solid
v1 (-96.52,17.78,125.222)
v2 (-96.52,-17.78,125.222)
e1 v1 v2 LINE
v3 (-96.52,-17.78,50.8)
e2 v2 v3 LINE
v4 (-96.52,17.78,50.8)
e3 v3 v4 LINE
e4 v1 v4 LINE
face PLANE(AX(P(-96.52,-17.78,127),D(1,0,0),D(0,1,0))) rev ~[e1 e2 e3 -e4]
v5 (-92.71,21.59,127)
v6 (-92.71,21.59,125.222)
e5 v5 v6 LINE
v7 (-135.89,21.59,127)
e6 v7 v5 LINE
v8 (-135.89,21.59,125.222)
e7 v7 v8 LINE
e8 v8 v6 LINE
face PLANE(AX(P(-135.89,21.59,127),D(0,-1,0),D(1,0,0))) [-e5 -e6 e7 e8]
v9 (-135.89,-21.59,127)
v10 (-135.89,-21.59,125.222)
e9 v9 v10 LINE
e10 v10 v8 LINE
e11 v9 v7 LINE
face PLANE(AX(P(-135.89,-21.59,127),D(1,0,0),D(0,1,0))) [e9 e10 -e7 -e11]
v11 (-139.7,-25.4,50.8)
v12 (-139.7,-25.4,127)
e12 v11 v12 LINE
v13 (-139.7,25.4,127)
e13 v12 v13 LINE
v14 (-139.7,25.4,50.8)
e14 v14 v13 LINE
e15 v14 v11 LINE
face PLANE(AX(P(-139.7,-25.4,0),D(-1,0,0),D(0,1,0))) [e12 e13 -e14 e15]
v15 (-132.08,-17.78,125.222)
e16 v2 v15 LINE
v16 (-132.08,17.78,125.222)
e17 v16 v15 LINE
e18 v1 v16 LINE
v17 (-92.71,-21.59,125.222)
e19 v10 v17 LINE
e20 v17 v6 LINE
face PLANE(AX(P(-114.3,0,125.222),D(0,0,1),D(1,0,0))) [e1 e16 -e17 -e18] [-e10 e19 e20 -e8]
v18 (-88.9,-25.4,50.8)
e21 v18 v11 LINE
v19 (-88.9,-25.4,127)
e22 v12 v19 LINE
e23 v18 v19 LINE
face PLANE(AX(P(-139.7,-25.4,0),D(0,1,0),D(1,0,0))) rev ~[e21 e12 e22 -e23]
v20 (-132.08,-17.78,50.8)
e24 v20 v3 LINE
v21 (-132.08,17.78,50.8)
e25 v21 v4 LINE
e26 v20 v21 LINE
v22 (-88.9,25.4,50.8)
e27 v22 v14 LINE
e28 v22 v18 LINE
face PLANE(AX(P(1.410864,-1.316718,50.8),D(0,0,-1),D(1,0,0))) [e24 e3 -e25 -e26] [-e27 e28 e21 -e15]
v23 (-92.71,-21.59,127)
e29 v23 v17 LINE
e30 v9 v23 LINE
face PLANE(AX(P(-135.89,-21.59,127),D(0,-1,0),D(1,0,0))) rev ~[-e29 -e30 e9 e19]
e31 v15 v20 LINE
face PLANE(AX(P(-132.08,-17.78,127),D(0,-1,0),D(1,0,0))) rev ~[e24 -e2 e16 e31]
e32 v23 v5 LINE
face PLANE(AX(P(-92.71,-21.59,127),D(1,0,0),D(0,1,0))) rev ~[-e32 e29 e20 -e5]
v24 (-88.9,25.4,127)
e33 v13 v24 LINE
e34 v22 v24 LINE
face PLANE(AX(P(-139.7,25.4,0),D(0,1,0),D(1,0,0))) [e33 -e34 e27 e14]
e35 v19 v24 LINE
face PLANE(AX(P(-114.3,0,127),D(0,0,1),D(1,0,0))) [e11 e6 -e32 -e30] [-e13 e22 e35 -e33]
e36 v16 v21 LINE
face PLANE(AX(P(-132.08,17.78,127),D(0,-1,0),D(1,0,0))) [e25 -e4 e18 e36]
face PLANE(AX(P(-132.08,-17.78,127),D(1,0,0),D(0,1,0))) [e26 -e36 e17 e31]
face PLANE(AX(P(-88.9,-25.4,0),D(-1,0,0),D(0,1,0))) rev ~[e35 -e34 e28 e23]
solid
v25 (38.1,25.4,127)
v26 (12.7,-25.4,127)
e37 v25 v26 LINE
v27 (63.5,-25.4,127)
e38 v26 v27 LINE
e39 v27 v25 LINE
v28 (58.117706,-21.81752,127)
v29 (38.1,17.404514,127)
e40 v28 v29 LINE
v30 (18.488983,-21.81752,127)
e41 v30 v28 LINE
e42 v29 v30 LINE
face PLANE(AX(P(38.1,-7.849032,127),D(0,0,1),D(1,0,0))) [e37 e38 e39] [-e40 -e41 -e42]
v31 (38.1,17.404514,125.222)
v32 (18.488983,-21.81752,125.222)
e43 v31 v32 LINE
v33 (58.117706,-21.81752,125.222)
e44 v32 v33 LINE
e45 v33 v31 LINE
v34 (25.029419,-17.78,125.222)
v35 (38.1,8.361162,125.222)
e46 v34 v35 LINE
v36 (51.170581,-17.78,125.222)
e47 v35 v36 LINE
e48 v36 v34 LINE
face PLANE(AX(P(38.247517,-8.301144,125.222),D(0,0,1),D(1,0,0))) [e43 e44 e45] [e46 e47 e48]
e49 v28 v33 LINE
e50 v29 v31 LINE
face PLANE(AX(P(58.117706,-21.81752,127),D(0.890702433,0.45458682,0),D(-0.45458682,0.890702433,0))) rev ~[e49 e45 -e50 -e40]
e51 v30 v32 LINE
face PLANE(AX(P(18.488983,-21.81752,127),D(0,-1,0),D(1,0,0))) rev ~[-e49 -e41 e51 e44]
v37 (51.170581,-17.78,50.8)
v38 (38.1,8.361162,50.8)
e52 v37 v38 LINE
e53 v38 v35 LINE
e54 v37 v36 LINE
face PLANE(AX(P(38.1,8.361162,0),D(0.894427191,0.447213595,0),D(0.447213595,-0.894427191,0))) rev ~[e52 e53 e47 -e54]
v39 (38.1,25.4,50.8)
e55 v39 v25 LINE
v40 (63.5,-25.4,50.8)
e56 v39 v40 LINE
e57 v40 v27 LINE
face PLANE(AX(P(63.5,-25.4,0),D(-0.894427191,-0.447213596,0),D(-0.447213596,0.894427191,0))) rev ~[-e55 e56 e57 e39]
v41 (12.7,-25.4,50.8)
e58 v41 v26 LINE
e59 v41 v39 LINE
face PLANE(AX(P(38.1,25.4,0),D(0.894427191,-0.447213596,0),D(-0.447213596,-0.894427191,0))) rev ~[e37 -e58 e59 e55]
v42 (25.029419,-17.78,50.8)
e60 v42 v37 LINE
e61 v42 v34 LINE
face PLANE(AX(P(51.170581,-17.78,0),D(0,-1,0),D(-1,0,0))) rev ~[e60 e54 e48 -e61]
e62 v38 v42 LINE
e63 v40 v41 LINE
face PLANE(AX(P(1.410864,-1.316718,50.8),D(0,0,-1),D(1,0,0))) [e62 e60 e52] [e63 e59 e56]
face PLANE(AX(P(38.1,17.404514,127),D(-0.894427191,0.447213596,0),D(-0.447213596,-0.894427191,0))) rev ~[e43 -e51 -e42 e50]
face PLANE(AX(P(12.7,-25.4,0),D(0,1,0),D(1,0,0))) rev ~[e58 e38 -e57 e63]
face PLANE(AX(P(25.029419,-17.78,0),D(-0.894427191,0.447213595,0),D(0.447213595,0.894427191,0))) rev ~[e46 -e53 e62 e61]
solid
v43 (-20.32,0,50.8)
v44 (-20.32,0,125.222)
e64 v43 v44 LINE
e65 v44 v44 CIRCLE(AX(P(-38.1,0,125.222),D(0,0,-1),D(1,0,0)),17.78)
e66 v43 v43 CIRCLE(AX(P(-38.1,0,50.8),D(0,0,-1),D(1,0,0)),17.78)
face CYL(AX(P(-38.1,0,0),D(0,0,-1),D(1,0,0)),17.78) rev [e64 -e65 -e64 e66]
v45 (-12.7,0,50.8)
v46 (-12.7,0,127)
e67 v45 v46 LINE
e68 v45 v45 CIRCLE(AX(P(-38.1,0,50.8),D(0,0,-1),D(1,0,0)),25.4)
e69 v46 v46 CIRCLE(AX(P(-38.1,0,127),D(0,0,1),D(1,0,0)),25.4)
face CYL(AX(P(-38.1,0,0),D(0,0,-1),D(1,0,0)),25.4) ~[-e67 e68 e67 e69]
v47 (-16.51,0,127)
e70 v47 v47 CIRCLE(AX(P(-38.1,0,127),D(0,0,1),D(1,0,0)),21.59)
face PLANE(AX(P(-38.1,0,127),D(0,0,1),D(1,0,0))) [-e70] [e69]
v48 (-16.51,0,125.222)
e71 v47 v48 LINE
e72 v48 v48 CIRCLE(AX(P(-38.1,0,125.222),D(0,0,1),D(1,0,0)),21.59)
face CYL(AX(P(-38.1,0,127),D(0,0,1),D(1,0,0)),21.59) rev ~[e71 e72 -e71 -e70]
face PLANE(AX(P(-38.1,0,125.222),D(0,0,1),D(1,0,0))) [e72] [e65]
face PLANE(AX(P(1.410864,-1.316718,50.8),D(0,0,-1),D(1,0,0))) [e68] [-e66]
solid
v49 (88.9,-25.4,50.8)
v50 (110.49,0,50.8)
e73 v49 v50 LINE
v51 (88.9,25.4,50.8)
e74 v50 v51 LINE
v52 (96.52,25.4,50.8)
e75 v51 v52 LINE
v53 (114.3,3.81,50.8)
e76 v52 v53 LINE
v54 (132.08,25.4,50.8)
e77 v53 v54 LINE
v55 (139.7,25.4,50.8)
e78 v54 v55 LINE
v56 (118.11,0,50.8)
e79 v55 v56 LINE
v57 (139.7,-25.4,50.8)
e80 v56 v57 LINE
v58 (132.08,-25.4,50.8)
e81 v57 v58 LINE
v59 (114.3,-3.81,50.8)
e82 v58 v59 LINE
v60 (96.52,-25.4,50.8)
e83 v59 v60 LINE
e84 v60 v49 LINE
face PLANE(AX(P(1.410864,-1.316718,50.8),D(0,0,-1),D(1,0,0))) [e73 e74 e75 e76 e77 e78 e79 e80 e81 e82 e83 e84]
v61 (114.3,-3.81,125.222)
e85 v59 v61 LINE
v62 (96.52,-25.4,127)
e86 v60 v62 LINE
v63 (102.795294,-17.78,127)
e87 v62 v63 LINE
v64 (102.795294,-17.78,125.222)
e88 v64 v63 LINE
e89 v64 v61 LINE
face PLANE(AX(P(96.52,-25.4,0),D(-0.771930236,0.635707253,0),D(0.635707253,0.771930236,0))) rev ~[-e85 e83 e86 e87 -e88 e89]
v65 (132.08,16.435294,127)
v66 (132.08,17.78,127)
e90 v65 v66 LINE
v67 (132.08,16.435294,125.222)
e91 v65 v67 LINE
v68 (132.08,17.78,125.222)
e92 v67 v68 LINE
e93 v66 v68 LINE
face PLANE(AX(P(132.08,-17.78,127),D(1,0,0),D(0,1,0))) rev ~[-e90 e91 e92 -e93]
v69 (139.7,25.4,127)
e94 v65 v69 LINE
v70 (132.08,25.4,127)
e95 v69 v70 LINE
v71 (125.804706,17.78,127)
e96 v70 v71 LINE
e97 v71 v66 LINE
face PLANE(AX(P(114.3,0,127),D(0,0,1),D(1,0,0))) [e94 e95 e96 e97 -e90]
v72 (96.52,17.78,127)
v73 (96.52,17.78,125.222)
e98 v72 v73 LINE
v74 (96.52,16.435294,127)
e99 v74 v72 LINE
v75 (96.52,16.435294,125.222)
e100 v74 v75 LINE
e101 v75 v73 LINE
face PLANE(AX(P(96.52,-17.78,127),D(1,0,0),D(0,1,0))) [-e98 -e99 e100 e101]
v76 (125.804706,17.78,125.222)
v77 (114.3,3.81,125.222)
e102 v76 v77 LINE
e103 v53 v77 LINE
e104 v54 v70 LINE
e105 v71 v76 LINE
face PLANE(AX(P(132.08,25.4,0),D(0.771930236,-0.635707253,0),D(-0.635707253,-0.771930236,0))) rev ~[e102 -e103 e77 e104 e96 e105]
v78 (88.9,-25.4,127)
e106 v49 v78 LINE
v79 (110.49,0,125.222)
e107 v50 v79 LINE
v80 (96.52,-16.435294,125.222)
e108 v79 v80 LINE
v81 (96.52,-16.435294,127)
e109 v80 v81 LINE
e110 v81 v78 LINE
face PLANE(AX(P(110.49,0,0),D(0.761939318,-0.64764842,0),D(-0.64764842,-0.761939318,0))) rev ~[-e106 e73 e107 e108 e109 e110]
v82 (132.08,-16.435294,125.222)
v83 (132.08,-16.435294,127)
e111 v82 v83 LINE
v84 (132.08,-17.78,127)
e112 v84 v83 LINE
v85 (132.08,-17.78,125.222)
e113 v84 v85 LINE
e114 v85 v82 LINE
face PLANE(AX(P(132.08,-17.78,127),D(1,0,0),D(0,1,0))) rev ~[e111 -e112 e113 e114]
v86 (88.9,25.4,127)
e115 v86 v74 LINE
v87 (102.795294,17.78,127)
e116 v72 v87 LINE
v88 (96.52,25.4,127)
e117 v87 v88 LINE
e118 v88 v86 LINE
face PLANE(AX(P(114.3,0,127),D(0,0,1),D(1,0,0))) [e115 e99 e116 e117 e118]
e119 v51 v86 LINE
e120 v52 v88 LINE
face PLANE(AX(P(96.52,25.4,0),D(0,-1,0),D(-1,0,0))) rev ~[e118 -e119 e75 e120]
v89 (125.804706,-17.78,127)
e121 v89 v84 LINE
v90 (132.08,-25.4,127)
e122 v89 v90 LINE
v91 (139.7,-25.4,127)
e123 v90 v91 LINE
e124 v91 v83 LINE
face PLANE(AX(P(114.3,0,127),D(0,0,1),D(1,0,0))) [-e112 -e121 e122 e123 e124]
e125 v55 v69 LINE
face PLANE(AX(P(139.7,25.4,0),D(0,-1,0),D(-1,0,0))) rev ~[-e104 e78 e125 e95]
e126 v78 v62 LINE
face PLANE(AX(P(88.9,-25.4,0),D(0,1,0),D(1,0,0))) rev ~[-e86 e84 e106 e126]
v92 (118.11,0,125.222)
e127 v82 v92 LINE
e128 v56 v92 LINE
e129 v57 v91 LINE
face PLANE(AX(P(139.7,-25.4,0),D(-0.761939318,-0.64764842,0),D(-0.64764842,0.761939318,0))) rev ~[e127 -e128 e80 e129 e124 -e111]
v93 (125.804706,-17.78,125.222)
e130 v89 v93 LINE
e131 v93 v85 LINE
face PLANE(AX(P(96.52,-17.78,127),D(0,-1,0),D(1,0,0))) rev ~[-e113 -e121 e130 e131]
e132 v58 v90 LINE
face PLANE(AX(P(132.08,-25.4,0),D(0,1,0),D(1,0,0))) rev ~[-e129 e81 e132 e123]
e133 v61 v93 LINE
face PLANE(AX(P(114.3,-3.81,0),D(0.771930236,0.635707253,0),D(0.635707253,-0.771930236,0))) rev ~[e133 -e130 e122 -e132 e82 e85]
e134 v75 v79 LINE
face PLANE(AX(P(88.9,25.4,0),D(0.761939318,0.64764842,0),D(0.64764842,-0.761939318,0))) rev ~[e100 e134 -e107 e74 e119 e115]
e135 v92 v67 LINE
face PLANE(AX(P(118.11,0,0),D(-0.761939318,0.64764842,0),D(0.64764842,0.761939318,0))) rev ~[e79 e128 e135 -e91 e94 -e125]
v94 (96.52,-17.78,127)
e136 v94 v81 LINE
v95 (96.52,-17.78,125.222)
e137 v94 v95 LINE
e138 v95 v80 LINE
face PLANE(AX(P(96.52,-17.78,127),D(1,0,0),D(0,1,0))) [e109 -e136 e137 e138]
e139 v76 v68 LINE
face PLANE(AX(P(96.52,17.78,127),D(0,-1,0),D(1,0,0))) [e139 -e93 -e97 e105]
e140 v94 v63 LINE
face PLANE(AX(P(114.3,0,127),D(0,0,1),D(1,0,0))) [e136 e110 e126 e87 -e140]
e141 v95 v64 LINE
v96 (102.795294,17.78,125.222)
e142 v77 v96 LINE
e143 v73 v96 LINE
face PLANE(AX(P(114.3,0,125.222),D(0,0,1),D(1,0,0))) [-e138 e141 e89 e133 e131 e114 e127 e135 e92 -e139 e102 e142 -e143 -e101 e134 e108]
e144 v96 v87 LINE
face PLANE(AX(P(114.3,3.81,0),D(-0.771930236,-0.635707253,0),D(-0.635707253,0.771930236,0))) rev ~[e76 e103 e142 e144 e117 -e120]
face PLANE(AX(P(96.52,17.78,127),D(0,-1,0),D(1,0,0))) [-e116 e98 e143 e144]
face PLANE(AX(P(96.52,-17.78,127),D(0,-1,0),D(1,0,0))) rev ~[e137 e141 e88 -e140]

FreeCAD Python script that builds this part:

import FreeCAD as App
import Part
import Sketcher

V = App.Vector
Q = App.Units.Quantity


def add_polygon(sketch, points):
    """Adds a closed chain of lines whose ends are joined by coincident constraints."""
    first, n = sketch.GeometryCount, len(points)
    for a, b in zip(points, points[1:] + points[:1]):
        sketch.addGeometry(Part.LineSegment(App.Vector(*a, 0), App.Vector(*b, 0)), False)
    for i in range(n):
        sketch.addConstraint(Sketcher.Constraint("Coincident", first + i, 2, first + (i + 1) % n, 1))

doc = App.newDocument("Part")
body = doc.addObject("PartDesign::Body", "Body")

sketch1 = body.newObject("Sketcher::SketchObject", "Sketch")
sketch1.AttachmentSupport = (doc.getObject("XY_Plane"), [""])
sketch1.MapMode = "FlatFace"
add_polygon(sketch1, [(-140, 25), (-140, -25), (140, -25), (140, 25)])
sketch1.addConstraint([
    Sketcher.Constraint("Vertical", 0),
    Sketcher.Constraint("Horizontal", 1),
    Sketcher.Constraint("Vertical", 2),
    Sketcher.Constraint("Horizontal", 3),
    Sketcher.Constraint("Symmetric", 0, 2, 2, 2, -1, 1),
    Sketcher.Constraint("DistanceX", 1, 1, 1, 2, Q("11 in")),
    Sketcher.Constraint("DistanceY", 0, 2, 0, 1, Q("2 in")),
])
pad1 = body.newObject("PartDesign::Pad", "Pad")
pad1.Profile = sketch1
pad1.Length = Q("1 in")
pad1.Reversed = True
body2 = doc.addObject("PartDesign::Body", "Body001")

sketch2 = body2.newObject("Sketcher::SketchObject", "Sketch001")
sketch2.AttachmentSupport = (doc.getObject("XY_Plane001"), [""])
sketch2.MapMode = "FlatFace"
add_polygon(sketch2, [(-140, 25), (-140, -25), (-89, -25), (-89, 25)])
sketch2.addConstraint([
    Sketcher.Constraint("Vertical", 0),
    Sketcher.Constraint("Horizontal", 1),
    Sketcher.Constraint("Vertical", 2),
    Sketcher.Constraint("Horizontal", 3),
    Sketcher.Constraint("Equal", 3, 0),
    Sketcher.Constraint("DistanceX", 1, 1, 1, 2, Q("2 in")),
    Sketcher.Constraint("DistanceY", 0, 2, -1, 1, Q("1 in")),
    Sketcher.Constraint("DistanceX", 0, 2, -1, 1, Q("5.5 in")),
])
pad2 = body2.newObject("PartDesign::Pad", "Pad001")
pad2.Profile = sketch2
pad2.Length = Q("5 in")

sketch3 = body2.newObject("Sketcher::SketchObject", "Sketch002")
sketch3.AttachmentSupport = (doc.getObject("XY_Plane001"), [""])
sketch3.MapMode = "FlatFace"
sketch3.AttachmentOffset = App.Placement(V(0, 0, 5 * 25.4), App.Rotation())
add_polygon(sketch3, [(-132, 18), (-132, -18), (-97, -18), (-97, 18)])
sketch3.addConstraint([
    Sketcher.Constraint("Vertical", 0),
    Sketcher.Constraint("Horizontal", 1),
    Sketcher.Constraint("Vertical", 2),
    Sketcher.Constraint("Horizontal", 3),
    Sketcher.Constraint("Equal", 3, 0),
    Sketcher.Constraint("DistanceX", 1, 1, 1, 2, Q("1.4 in")),
    Sketcher.Constraint("DistanceX", 0, 2, -1, 1, Q("5.2 in")),
    Sketcher.Constraint("DistanceY", 0, 2, -1, 1, Q("0.7 in")),
])
pocket1 = body2.newObject("PartDesign::Pocket", "Pocket")
pocket1.Profile = sketch3
pocket1.Length = Q("5 in")
body3 = doc.addObject("PartDesign::Body", "Body002")

sketch4 = body3.newObject("Sketcher::SketchObject", "Sketch003")
sketch4.AttachmentSupport = (doc.getObject("XY_Plane002"), [""])
sketch4.MapMode = "FlatFace"
sketch4.addGeometry([
    Part.Circle(V(-38, 0, 0), V(0, 0, 1), 25),
    Part.Circle(V(-38, 0, 0), V(0, 0, 1), 18),
], False)
sketch4.addConstraint([
    Sketcher.Constraint("Coincident", 1, 3, 0, 3),
    Sketcher.Constraint("PointOnObject", 0, 3, -1),
    Sketcher.Constraint("Diameter", 0, Q("2 in")),
    Sketcher.Constraint("Diameter", 1, Q("1.4 in")),
    Sketcher.Constraint("DistanceX", 0, 3, -1, 1, Q("1.5 in")),
])
pad3 = body3.newObject("PartDesign::Pad", "Pad002")
pad3.Profile = sketch4
pad3.Length = Q("5 in")
body4 = doc.addObject("PartDesign::Body", "Body003")

sketch5 = body4.newObject("Sketcher::SketchObject", "Sketch004")
sketch5.AttachmentSupport = (doc.getObject("XY_Plane003"), [""])
sketch5.MapMode = "FlatFace"
add_polygon(sketch5, [(38, 25), (13, -25), (64, -25)])
add_polygon(sketch5, [(51, -18), (25, -18), (38, 8)])
sketch5.addConstraint([
    Sketcher.Constraint("Horizontal", 1),
    Sketcher.Constraint("Horizontal", 3),
    Sketcher.Constraint("Parallel", 0, 4),
    Sketcher.Constraint("Parallel", 2, 5),
    Sketcher.Constraint("Vertical", 2, 2, 4, 2),
    Sketcher.Constraint("Equal", 0, 2),
    Sketcher.Constraint("DistanceX", 1, 1, 1, 2, Q("2 in")),
    Sketcher.Constraint("DistanceY", 0, 2, -1, 1, Q("1 in")),
    Sketcher.Constraint("DistanceY", -1, 1, 2, 2, Q("1 in")),
    Sketcher.Constraint("DistanceX", -1, 1, 0, 2, Q("0.5 in")),
    Sketcher.Constraint("DistanceY", 3, 2, -1, 1, Q("0.7 in")),
    Sketcher.Constraint("DistanceX", 3, 2, 3, 1, 26.141162),
])
pad4 = body4.newObject("PartDesign::Pad", "Pad003")
pad4.Profile = sketch5
pad4.Length = Q("5 in")
body5 = doc.addObject("PartDesign::Body", "Body004")

sketch6 = body5.newObject("Sketcher::SketchObject", "Sketch005")
sketch6.AttachmentSupport = (doc.getObject("XY_Plane004"), [""])
sketch6.MapMode = "FlatFace"
add_polygon(sketch6, [(110, 0), (89, -25), (97, -25), (114, -4), (132, -25), (140, -25), (118, 0), (140, 25), (132, 25), (114, 4), (97, 25), (89, 25)])
sketch6.addConstraint([
    Sketcher.Constraint("Horizontal", 1),
    Sketcher.Constraint("Horizontal", 4),
    Sketcher.Constraint("Horizontal", 7),
    Sketcher.Constraint("Horizontal", 10),
    Sketcher.Constraint("Symmetric", 4, 2, 6, 2, -1),
    Sketcher.Constraint("Symmetric", 2, 2, 8, 2, -1),
    Sketcher.Constraint("Symmetric", 1, 2, 9, 2, -1),
    Sketcher.Constraint("PointOnObject", 5, 2, -1),
    Sketcher.Constraint("PointOnObject", 11, 2, -1),
    Sketcher.Constraint("Parallel", 0, 6),
    Sketcher.Constraint("Parallel", 2, 8),
    Sketcher.Constraint("Parallel", 3, 9),
    Sketcher.Constraint("Parallel", 5, 11),
    Sketcher.Constraint("Horizontal", 1, 2, 3, 2),
    Sketcher.Constraint("Equal", 1, 4),
    Sketcher.Constraint("DistanceX", 1, 1, 1, 2, Q("0.3 in")),
    Sketcher.Constraint("DistanceY", 0, 2, -1, 1, Q("1 in")),
    Sketcher.Constraint("DistanceX", 0, 2, 2, 2, Q("1 in")),
    Sketcher.Constraint("DistanceX", -1, 1, 0, 2, Q("3.5 in")),
    Sketcher.Constraint("DistanceY", 2, 2, 8, 2, Q("0.3 in")),
    Sketcher.Constraint("DistanceX", 11, 2, 5, 2, Q("0.3 in")),
])
pad5 = body5.newObject("PartDesign::Pad", "Pad004")
pad5.Profile = sketch6
pad5.Length = Q("5 in")
body6 = doc.addObject("PartDesign::Body", "Body005")

sketch7 = body6.newObject("Sketcher::SketchObject", "Sketch006")
sketch7.AttachmentSupport = (doc.getObject("XY_Plane005"), [""])
sketch7.MapMode = "FlatFace"
sketch7.AttachmentOffset = App.Placement(V(0, 0, -1 * 25.4), App.Rotation())
add_polygon(sketch7, [(-151, -34), (-151, 31), (154, 31), (154, -34)])
sketch7.addConstraint([
    Sketcher.Constraint("Vertical", 0),
    Sketcher.Constraint("Horizontal", 1),
    Sketcher.Constraint("Vertical", 2),
    Sketcher.Constraint("Horizontal", 3),
    Sketcher.Constraint("DistanceY", 0, 1, 0, 2, 65.00827),
    Sketcher.Constraint("DistanceX", 1, 1, 1, 2, 305.341855),
    Sketcher.Constraint("DistanceX", -1, 1, 1, 2, 154.081792),
    Sketcher.Constraint("DistanceY", -1, 1, 0, 2, 31.187417),
])
pad6 = body6.newObject("PartDesign::Pad", "Pad005")
pad6.Profile = sketch7
pad6.Length = Q("3 in")
doc.recompute()

body7 = doc.addObject("PartDesign::Body", "Body006")
body7.BaseFeature = body6
boolean = body.newObject("PartDesign::Boolean", "Boolean")
boolean.Type = "Cut"
boolean.addObjects([body7])
doc.recompute()

body8 = doc.addObject("PartDesign::Body", "Body007")
body8.BaseFeature = body6
boolean2 = body2.newObject("PartDesign::Boolean", "Boolean001")
boolean2.Type = "Cut"
boolean2.addObjects([body8])
doc.recompute()

sketch8 = body2.newObject("Sketcher::SketchObject", "Sketch007")
sketch8.AttachmentSupport = (doc.getObject("XY_Plane001"), [""])
sketch8.MapMode = "FlatFace"
sketch8.AttachmentOffset = App.Placement(V(0, 0, 5 * 25.4), App.Rotation())
add_polygon(sketch8, [(-136, 22), (-136, -22), (-93, -22), (-93, 22)])
sketch8.addConstraint([
    Sketcher.Constraint("Vertical", 0),
    Sketcher.Constraint("Horizontal", 1),
    Sketcher.Constraint("Vertical", 2),
    Sketcher.Constraint("Horizontal", 3),
    Sketcher.Constraint("Equal", 3, 0),
    Sketcher.Constraint("DistanceX", 1, 1, 1, 2, Q("1.7 in")),
    Sketcher.Constraint("DistanceX", 0, 2, -1, 1, Q("5.35 in")),
    Sketcher.Constraint("DistanceY", 0, 2, -1, 1, Q("0.85 in")),
])
pocket2 = body2.newObject("PartDesign::Pocket", "Pocket001")
pocket2.Profile = sketch8
pocket2.Length = Q("0.07 in")
doc.recompute()

body9 = doc.addObject("PartDesign::Body", "Body008")
body9.BaseFeature = body6
boolean3 = body3.newObject("PartDesign::Boolean", "Boolean002")
boolean3.Type = "Cut"
boolean3.addObjects([body9])
doc.recompute()

sketch9 = body3.newObject("Sketcher::SketchObject", "Sketch008")
sketch9.AttachmentSupport = (doc.getObject("XY_Plane002"), [""])
sketch9.MapMode = "FlatFace"
sketch9.AttachmentOffset = App.Placement(V(0, 0, 5 * 25.4), App.Rotation())
sketch9.addGeometry(Part.Circle(V(-38, 0, 0), V(0, 0, 1), 22), False)
sketch9.addConstraint([
    Sketcher.Constraint("PointOnObject", 0, 3, -1),
    Sketcher.Constraint("Diameter", 0, Q("1.7 in")),
    Sketcher.Constraint("DistanceX", 0, 3, -1, 1, Q("1.5 in")),
])
pocket3 = body3.newObject("PartDesign::Pocket", "Pocket002")
pocket3.Profile = sketch9
pocket3.Length = Q("0.07 in")
doc.recompute()

body10 = doc.addObject("PartDesign::Body", "Body009")
body10.BaseFeature = body6
boolean4 = body4.newObject("PartDesign::Boolean", "Boolean003")
boolean4.Type = "Cut"
boolean4.addObjects([body10])
doc.recompute()

sketch10 = body4.newObject("Sketcher::SketchObject", "Sketch009")
sketch10.AttachmentSupport = (doc.getObject("XY_Plane003"), [""])
sketch10.MapMode = "FlatFace"
sketch10.AttachmentOffset = App.Placement(V(0, 0, 5 * 25.4), App.Rotation())
add_polygon(sketch10, [(58, -22), (38, 17), (18, -22)])
sketch10.addConstraint([
    Sketcher.Constraint("Horizontal", 2),
    Sketcher.Constraint("DistanceX", -1, 1, 0, 2, Q("1.5 in")),
    Sketcher.Constraint("DistanceX", 2, 1, 2, 2, 39.628723),
    Sketcher.Constraint("DistanceY", 1, 2, -1, 1, 21.81752),
    Sketcher.Constraint("Distance", 0, 44.034947),
    Sketcher.Constraint("Distance", 1, 43.851567),
])
pocket4 = body4.newObject("PartDesign::Pocket", "Pocket003")
pocket4.Profile = sketch10
pocket4.Length = Q("0.07 in")
doc.recompute()

boolean5 = body5.newObject("PartDesign::Boolean", "Boolean004")
boolean5.Type = "Cut"
boolean5.addObjects([body6])

sketch11 = body5.newObject("Sketcher::SketchObject", "Sketch010")
sketch11.AttachmentSupport = (doc.getObject("XY_Plane004"), [""])
sketch11.MapMode = "FlatFace"
sketch11.AttachmentOffset = App.Placement(V(0, 0, 5 * 25.4), App.Rotation())
add_polygon(sketch11, [(97, 18), (97, -18), (132, -18), (132, 18)])
sketch11.addConstraint([
    Sketcher.Constraint("Vertical", 0),
    Sketcher.Constraint("Horizontal", 1),
    Sketcher.Constraint("Vertical", 2),
    Sketcher.Constraint("Horizontal", 3),
    Sketcher.Constraint("Equal", 3, 0),
    Sketcher.Constraint("DistanceX", 1, 1, 1, 2, Q("1.4 in")),
    Sketcher.Constraint("DistanceX", -1, 1, 0, 2, Q("3.8 in")),
    Sketcher.Constraint("DistanceY", 0, 2, -1, 1, Q("0.7 in")),
])
pocket5 = body5.newObject("PartDesign::Pocket", "Pocket004")
pocket5.Profile = sketch11
pocket5.Length = Q("0.07 in")

doc.recompute()
